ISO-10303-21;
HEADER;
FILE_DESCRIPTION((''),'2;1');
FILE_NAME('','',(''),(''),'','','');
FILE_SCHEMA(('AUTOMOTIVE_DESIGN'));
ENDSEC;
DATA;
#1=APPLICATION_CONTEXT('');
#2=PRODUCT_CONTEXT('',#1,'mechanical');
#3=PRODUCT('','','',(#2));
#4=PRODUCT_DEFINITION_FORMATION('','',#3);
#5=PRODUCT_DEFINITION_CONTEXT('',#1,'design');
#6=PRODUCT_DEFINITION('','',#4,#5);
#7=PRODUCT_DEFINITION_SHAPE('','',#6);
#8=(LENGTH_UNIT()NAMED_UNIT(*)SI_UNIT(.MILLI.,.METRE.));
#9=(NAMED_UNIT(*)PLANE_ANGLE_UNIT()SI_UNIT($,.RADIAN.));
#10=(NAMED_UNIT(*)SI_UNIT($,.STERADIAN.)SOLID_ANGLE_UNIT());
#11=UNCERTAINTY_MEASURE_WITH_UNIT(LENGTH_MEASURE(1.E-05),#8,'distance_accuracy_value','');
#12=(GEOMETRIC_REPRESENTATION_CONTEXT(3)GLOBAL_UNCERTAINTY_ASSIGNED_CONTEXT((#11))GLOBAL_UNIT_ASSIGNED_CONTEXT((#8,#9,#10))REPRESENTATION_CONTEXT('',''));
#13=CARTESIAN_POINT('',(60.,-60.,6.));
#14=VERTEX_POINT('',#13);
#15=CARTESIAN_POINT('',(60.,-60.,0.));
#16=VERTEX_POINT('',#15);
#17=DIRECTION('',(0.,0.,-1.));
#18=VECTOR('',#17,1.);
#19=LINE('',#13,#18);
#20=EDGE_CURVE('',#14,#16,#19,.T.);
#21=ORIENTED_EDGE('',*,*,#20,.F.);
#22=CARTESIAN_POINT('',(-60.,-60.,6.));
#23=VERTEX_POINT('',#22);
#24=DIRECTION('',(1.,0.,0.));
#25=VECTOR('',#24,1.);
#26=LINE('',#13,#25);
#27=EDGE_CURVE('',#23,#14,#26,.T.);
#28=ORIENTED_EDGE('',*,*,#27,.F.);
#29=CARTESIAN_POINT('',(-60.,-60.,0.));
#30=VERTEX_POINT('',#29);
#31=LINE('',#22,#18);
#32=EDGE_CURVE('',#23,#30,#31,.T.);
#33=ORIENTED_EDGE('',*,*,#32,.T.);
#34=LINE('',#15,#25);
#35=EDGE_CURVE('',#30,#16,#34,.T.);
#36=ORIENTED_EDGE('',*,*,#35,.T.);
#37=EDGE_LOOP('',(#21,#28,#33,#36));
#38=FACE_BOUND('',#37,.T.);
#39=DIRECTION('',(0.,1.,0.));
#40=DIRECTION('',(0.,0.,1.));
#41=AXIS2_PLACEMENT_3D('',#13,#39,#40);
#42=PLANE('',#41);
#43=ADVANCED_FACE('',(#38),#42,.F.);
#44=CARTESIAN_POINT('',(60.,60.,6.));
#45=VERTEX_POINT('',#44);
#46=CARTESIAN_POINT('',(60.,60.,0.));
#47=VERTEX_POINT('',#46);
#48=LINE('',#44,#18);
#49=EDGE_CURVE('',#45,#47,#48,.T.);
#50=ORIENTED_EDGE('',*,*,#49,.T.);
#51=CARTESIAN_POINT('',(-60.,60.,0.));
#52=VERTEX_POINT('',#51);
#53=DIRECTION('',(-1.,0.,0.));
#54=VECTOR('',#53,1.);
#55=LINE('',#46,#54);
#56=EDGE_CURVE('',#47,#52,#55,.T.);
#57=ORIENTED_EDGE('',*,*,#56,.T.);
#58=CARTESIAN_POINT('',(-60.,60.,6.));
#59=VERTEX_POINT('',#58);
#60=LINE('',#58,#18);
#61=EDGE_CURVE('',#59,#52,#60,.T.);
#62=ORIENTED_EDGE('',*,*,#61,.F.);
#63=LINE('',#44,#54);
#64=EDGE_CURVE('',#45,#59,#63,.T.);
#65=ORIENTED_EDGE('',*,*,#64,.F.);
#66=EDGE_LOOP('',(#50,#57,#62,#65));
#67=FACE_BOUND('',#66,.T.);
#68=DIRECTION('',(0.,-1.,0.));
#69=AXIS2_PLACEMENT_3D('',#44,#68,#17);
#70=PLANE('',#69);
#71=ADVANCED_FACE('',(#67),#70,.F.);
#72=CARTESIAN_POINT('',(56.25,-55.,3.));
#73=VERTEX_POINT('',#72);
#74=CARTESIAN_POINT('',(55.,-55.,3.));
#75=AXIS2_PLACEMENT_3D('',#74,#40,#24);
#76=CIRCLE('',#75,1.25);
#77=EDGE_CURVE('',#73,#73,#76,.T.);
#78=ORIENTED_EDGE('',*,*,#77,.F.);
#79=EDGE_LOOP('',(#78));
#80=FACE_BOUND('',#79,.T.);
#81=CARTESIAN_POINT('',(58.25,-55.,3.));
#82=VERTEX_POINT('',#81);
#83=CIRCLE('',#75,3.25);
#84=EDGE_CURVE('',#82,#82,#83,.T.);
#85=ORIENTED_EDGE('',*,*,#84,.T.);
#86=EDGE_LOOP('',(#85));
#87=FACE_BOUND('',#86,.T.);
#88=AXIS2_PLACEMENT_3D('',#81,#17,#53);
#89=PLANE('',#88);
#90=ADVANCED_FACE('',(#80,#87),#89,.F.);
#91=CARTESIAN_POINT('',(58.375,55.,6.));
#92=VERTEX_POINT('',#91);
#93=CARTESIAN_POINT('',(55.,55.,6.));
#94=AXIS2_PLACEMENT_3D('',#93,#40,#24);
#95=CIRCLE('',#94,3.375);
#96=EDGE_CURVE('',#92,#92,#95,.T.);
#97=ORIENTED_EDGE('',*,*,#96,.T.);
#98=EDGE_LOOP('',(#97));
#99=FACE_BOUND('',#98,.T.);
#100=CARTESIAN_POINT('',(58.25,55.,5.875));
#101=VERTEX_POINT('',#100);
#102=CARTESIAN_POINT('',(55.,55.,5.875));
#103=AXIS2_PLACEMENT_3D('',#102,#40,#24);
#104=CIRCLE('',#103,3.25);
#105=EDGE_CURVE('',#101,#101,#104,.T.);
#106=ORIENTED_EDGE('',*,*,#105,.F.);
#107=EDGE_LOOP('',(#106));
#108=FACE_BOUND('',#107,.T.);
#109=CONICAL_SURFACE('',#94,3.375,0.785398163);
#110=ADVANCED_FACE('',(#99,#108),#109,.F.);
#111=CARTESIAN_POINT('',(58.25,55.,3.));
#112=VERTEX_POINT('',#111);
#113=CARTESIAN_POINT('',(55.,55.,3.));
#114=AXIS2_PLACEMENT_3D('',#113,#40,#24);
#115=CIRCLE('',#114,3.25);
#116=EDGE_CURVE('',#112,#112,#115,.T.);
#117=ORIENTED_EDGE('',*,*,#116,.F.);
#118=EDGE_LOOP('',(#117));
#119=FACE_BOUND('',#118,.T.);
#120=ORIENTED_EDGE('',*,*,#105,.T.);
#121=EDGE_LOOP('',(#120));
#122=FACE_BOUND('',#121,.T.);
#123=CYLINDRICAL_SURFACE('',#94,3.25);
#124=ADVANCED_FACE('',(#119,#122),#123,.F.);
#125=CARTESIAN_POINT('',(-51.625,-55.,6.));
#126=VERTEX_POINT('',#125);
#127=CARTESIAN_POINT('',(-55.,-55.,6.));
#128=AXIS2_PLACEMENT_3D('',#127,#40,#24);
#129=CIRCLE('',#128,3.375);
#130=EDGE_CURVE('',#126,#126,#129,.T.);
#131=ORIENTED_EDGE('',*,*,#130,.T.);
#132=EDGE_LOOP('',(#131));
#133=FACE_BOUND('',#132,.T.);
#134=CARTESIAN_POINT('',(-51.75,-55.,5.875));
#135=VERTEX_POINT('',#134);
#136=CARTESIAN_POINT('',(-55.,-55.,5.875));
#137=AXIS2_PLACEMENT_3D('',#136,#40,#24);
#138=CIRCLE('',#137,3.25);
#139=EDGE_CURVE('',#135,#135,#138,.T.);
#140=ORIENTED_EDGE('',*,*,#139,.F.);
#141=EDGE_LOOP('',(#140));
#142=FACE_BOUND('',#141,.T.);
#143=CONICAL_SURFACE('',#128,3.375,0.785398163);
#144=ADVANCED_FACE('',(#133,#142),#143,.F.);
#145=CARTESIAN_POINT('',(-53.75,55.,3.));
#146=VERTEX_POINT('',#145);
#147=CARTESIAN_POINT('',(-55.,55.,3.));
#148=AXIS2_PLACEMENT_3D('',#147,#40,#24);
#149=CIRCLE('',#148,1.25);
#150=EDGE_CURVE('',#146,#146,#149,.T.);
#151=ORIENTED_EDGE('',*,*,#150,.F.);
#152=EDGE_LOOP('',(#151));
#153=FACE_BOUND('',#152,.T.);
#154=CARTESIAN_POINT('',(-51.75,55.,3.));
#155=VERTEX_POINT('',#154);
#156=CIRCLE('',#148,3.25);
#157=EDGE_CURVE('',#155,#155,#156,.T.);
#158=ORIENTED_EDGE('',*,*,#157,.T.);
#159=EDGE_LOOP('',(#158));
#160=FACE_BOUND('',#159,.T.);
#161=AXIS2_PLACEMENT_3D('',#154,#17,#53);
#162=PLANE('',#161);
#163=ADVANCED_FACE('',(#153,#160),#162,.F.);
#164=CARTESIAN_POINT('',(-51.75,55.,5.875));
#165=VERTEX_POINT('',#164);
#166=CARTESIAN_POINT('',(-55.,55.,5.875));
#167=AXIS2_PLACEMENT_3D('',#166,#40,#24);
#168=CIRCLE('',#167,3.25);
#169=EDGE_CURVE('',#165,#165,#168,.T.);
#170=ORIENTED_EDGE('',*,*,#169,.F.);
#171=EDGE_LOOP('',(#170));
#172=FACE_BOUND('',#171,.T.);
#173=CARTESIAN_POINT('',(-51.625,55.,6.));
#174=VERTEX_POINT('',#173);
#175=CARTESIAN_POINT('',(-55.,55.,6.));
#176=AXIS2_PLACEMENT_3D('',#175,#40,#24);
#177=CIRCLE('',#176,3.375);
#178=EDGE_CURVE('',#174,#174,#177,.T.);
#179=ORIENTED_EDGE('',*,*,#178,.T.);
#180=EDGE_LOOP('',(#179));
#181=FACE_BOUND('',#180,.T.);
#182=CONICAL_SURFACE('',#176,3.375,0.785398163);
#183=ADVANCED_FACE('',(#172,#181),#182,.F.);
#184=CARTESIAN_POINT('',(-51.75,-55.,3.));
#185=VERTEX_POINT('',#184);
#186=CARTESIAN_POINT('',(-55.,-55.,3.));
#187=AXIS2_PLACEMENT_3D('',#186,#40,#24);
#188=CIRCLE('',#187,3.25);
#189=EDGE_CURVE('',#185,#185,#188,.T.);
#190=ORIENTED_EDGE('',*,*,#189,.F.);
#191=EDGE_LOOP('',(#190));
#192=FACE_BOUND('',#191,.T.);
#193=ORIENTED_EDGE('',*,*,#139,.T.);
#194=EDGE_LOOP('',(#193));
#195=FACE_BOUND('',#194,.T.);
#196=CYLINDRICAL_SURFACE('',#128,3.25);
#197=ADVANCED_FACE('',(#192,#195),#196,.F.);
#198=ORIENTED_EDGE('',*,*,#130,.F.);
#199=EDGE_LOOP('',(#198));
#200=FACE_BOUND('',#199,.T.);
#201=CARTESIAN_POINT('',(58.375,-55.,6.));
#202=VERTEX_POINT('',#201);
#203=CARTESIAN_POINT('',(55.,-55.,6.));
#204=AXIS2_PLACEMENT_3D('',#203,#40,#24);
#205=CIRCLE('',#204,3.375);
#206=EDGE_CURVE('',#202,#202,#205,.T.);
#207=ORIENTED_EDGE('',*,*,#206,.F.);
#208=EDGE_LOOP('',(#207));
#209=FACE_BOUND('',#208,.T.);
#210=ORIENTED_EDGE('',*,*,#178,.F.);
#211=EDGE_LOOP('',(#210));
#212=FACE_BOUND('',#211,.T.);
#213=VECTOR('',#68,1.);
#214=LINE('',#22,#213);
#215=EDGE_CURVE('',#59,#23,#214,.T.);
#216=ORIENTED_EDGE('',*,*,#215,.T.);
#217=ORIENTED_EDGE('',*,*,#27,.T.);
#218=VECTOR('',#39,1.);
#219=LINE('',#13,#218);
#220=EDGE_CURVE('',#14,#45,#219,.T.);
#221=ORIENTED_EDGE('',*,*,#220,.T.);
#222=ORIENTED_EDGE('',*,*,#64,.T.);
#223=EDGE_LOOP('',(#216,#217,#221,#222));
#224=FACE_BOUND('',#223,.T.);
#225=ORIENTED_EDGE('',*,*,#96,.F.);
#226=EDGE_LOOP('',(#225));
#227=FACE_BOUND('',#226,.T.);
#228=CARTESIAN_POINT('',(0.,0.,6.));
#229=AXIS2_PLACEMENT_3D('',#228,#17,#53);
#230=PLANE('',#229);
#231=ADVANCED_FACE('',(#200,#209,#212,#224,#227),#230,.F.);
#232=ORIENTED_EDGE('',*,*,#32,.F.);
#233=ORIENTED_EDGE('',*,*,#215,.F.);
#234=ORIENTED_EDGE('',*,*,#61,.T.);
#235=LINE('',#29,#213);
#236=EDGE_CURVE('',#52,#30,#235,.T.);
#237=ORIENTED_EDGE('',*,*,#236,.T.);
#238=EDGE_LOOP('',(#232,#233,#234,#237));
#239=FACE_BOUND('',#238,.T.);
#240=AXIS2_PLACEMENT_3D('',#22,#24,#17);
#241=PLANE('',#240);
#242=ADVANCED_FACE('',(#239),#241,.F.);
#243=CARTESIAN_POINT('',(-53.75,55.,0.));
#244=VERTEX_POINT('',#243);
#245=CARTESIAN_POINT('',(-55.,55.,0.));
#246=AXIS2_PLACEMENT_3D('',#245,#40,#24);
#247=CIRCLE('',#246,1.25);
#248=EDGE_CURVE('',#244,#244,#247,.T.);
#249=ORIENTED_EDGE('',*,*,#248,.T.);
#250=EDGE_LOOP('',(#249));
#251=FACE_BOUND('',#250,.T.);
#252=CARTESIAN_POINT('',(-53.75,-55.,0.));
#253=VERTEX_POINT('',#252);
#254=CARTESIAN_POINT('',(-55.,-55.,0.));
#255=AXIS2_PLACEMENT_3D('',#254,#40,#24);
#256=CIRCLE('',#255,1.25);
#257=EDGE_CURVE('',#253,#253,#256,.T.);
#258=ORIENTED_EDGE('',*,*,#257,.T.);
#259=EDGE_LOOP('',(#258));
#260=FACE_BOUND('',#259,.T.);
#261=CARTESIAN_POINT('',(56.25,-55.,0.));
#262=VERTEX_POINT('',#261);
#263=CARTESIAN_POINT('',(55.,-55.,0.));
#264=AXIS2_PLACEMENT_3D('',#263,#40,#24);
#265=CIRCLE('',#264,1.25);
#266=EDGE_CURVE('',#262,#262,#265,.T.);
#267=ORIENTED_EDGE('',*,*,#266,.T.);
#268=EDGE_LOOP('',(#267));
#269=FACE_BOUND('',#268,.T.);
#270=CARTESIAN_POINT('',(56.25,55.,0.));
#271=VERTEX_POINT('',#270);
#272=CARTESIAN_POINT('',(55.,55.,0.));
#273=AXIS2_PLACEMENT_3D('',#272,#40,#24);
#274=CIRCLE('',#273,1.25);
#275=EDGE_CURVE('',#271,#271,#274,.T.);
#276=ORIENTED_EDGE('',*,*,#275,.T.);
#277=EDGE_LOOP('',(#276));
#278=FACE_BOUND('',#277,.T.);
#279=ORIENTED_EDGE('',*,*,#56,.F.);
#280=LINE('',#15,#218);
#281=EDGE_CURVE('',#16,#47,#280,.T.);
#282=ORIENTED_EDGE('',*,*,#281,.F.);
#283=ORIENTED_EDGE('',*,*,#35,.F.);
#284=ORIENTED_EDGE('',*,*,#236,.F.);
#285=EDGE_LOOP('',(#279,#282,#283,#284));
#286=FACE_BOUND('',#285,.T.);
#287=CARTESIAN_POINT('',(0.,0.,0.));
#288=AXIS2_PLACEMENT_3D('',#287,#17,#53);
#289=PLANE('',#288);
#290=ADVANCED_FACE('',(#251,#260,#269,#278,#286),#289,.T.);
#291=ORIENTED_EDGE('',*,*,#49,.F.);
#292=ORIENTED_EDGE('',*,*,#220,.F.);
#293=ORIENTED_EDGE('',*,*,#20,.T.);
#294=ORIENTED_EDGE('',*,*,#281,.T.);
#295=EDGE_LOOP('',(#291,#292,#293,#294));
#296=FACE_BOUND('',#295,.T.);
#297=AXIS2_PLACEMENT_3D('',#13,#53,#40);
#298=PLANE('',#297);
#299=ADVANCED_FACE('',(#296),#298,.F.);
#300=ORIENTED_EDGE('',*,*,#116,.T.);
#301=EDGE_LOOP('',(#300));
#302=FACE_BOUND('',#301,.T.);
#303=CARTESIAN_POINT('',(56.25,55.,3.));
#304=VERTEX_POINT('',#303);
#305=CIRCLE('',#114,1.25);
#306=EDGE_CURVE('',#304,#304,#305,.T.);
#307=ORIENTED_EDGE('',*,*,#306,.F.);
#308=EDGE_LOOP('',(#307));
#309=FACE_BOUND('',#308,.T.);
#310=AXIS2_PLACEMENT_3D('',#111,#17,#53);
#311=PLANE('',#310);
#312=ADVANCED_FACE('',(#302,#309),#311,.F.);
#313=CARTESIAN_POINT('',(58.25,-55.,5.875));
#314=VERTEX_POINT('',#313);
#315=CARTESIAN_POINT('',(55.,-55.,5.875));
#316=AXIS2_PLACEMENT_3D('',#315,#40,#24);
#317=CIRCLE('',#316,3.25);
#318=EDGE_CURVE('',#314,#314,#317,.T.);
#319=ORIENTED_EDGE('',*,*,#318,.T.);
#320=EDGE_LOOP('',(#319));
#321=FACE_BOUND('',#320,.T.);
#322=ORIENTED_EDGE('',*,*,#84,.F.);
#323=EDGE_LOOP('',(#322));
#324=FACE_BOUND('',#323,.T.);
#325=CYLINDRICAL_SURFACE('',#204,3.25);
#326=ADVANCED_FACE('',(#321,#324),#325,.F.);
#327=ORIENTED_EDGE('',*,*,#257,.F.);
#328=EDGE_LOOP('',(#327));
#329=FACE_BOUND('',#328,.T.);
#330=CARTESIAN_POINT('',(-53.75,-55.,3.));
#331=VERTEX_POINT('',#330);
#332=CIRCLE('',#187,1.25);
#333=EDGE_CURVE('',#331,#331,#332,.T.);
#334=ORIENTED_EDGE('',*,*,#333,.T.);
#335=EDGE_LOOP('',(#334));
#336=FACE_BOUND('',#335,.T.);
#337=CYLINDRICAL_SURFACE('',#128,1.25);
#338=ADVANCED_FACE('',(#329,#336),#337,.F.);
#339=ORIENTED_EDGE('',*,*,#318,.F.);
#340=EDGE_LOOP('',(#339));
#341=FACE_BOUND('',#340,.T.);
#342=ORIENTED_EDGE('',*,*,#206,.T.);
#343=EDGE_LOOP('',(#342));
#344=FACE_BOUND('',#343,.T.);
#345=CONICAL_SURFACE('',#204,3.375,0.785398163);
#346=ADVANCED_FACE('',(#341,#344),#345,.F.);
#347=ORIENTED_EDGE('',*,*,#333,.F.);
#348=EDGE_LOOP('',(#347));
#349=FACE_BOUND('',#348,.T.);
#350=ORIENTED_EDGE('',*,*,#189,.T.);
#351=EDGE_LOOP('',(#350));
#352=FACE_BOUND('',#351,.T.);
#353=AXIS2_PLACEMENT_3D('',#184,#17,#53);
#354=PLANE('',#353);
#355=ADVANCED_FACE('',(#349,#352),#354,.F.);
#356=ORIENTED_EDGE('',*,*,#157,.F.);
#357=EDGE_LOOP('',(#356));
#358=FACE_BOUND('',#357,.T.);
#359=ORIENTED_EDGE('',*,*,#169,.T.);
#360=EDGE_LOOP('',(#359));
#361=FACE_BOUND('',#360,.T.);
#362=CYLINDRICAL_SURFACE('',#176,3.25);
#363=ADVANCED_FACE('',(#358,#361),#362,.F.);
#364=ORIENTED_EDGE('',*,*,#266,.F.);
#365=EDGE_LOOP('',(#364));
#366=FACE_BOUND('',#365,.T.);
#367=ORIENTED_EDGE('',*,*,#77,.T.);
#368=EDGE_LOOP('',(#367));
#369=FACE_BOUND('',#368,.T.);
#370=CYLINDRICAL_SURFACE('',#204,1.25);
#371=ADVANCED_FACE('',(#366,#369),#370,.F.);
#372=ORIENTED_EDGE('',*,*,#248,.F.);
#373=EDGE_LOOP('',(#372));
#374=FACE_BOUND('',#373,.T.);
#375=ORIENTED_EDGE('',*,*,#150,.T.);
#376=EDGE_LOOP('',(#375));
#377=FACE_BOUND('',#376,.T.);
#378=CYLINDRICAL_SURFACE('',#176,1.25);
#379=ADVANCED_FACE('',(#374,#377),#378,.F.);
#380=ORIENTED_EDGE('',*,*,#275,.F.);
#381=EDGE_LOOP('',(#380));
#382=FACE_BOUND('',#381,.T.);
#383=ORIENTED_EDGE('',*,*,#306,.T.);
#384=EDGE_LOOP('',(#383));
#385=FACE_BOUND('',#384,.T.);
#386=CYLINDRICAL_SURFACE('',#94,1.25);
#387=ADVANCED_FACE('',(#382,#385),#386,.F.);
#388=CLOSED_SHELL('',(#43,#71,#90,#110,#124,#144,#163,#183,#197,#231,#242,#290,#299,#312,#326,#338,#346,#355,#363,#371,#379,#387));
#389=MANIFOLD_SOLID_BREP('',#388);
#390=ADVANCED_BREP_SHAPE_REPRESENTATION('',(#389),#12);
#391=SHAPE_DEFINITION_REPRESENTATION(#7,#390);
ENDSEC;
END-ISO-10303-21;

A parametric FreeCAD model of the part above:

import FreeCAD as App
import Part
import Sketcher

V = App.Vector
Q = App.Units.Quantity

doc = App.newDocument("Part")
body = doc.addObject("PartDesign::Body", "Body")

# Sketch on XY plane
sketch1 = body.newObject("Sketcher::SketchObject", "Sketch")
sketch1.AttachmentSupport = (doc.getObject("XY_Plane"), [""])
sketch1.MapMode = "FlatFace"
sketch1.addGeometry(Part.LineSegment(V(-60, -60, 0), V(60, -60, 0)), False)
sketch1.addGeometry(Part.LineSegment(V(60, -60, 0), V(60, 60, 0)), False)
sketch1.addGeometry(Part.LineSegment(V(60, 60, 0), V(-60, 60, 0)), False)
sketch1.addGeometry(Part.LineSegment(V(-60, 60, 0), V(-60, -60, 0)), False)
sketch1.addConstraint(Sketcher.Constraint("Coincident", 0, 2, 1, 1))
sketch1.addConstraint(Sketcher.Constraint("Coincident", 1, 2, 2, 1))
sketch1.addConstraint(Sketcher.Constraint("Coincident", 2, 2, 3, 1))
sketch1.addConstraint(Sketcher.Constraint("Coincident", 3, 2, 0, 1))
sketch1.addConstraint(Sketcher.Constraint("Horizontal", 0))
sketch1.addConstraint(Sketcher.Constraint("Vertical", 1))
sketch1.addConstraint(Sketcher.Constraint("Horizontal", 2))
sketch1.addConstraint(Sketcher.Constraint("Vertical", 3))
sketch1.addConstraint(Sketcher.Constraint("Symmetric", 0, 2, 2, 2, -1, 1))
sketch1.addConstraint(Sketcher.Constraint("Equal", 2, 1))
sketch1.addConstraint(Sketcher.Constraint("DistanceX", 0, 1, 0, 2, 120.0))
pad1 = body.newObject("PartDesign::Pad", "Pad")
pad1.Profile = sketch1
pad1.Length = 6

# Sketch on YZ plane
sketch2 = body.newObject("Sketcher::SketchObject", "Sketch001")
sketch2.AttachmentSupport = (doc.getObject("YZ_Plane"), [""])
sketch2.MapMode = "FlatFace"
sketch2.AttachmentOffset = App.Placement(V(0, 0, -55), App.Rotation())
sketch2.addGeometry(Part.LineSegment(V(55, 0, 0), V(55, 6, 0)), False)
sketch2.addGeometry(Part.LineSegment(V(55, 6, 0), V(51.62, 6, 0)), False)
sketch2.addGeometry(Part.LineSegment(V(51.62, 6, 0), V(51.75, 5.88, 0)), False)
sketch2.addGeometry(Part.LineSegment(V(51.75, 5.88, 0), V(51.75, 3, 0)), False)
sketch2.addGeometry(Part.LineSegment(V(51.75, 3, 0), V(53.75, 3, 0)), False)
sketch2.addGeometry(Part.LineSegment(V(53.75, 3, 0), V(53.75, 0, 0)), False)
sketch2.addGeometry(Part.LineSegment(V(53.75, 0, 0), V(55, 0, 0)), False)
sketch2.addGeometry(Part.LineSegment(V(55, 6, 0), V(55, 0, 0)), True)  # axis
sketch2.addConstraint(Sketcher.Constraint("Coincident", 0, 2, 1, 1))
sketch2.addConstraint(Sketcher.Constraint("Coincident", 1, 2, 2, 1))
sketch2.addConstraint(Sketcher.Constraint("Coincident", 2, 2, 3, 1))
sketch2.addConstraint(Sketcher.Constraint("Coincident", 3, 2, 4, 1))
sketch2.addConstraint(Sketcher.Constraint("Coincident", 4, 2, 5, 1))
sketch2.addConstraint(Sketcher.Constraint("Coincident", 5, 2, 6, 1))
sketch2.addConstraint(Sketcher.Constraint("Coincident", 6, 2, 0, 1))
sketch2.addConstraint(Sketcher.Constraint("Vertical", 0))
sketch2.addConstraint(Sketcher.Constraint("Horizontal", 1))
sketch2.addConstraint(Sketcher.Constraint("Vertical", 3))
sketch2.addConstraint(Sketcher.Constraint("Horizontal", 4))
sketch2.addConstraint(Sketcher.Constraint("Vertical", 5))
sketch2.addConstraint(Sketcher.Constraint("Horizontal", 6))
sketch2.addConstraint(Sketcher.Constraint("Vertical", 7))
sketch2.addConstraint(Sketcher.Constraint("Coincident", 7, 1, 0, 2))
sketch2.addConstraint(Sketcher.Constraint("PointOnObject", 5, 2, -1))
sketch2.addConstraint(Sketcher.Constraint("PointOnObject", 7, 2, -1))
sketch2.addConstraint(Sketcher.Constraint("DistanceX", 4, 1, 4, 2, 2.0))
sketch2.addConstraint(Sketcher.Constraint("DistanceY", 0, 1, 0, 2, 6.0))
sketch2.addConstraint(Sketcher.Constraint("DistanceY", 5, 2, 5, 1, 3.0))
sketch2.addConstraint(Sketcher.Constraint("Angle", 2, Q("-45 deg")))
sketch2.addConstraint(Sketcher.Constraint("DistanceX", -1, 1, 0, 2, 55.0))
sketch2.addConstraint(Sketcher.Constraint("DistanceX", 6, 1, 6, 2, 1.25))
sketch2.addConstraint(Sketcher.Constraint("DistanceX", 1, 2, 1, 1, 3.375))
groove = body.newObject("PartDesign::Groove", "Groove")
groove.Profile = sketch2
groove.ReferenceAxis = (sketch2, ["Axis0"])
groove.Angle = 360
doc.recompute()

mirrored = body.newObject("PartDesign::Mirrored", "Mirrored")
mirrored.Originals = [groove]
mirrored.MirrorPlane = (doc.getObject("YZ_Plane"), [""])
body.Tip = mirrored
doc.recompute()

mirrored2 = body.newObject("PartDesign::Mirrored", "Mirrored001")
mirrored2.Originals = [groove]
mirrored2.MirrorPlane = (doc.getObject("XZ_Plane"), [""])
body.Tip = mirrored2

# Sketch on YZ plane
sketch3 = body.newObject("Sketcher::SketchObject", "Sketch002")
sketch3.AttachmentSupport = (doc.getObject("YZ_Plane"), [""])
sketch3.MapMode = "FlatFace"
sketch3.AttachmentOffset = App.Placement(V(0, 0, 55), App.Rotation())
sketch3.addGeometry(Part.LineSegment(V(-55, 0, 0), V(-55, 6, 0)), False)
sketch3.addGeometry(Part.LineSegment(V(-55, 6, 0), V(-51.62, 6, 0)), False)
sketch3.addGeometry(Part.LineSegment(V(-51.62, 6, 0), V(-51.75, 5.88, 0)), False)
sketch3.addGeometry(Part.LineSegment(V(-51.75, 5.88, 0), V(-51.75, 3, 0)), False)
sketch3.addGeometry(Part.LineSegment(V(-51.75, 3, 0), V(-53.75, 3, 0)), False)
sketch3.addGeometry(Part.LineSegment(V(-53.75, 3, 0), V(-53.75, 0, 0)), False)
sketch3.addGeometry(Part.LineSegment(V(-53.75, 0, 0), V(-55, 0, 0)), False)
sketch3.addGeometry(Part.LineSegment(V(-55, 6, 0), V(-55, 0, 0)), True)  # axis
sketch3.addConstraint(Sketcher.Constraint("Coincident", 0, 2, 1, 1))
sketch3.addConstraint(Sketcher.Constraint("Coincident", 1, 2, 2, 1))
sketch3.addConstraint(Sketcher.Constraint("Coincident", 2, 2, 3, 1))
sketch3.addConstraint(Sketcher.Constraint("Coincident", 3, 2, 4, 1))
sketch3.addConstraint(Sketcher.Constraint("Coincident", 4, 2, 5, 1))
sketch3.addConstraint(Sketcher.Constraint("Coincident", 5, 2, 6, 1))
sketch3.addConstraint(Sketcher.Constraint("Coincident", 6, 2, 0, 1))
sketch3.addConstraint(Sketcher.Constraint("Vertical", 0))
sketch3.addConstraint(Sketcher.Constraint("Horizontal", 1))
sketch3.addConstraint(Sketcher.Constraint("Vertical", 3))
sketch3.addConstraint(Sketcher.Constraint("Horizontal", 4))
sketch3.addConstraint(Sketcher.Constraint("Vertical", 5))
sketch3.addConstraint(Sketcher.Constraint("Horizontal", 6))
sketch3.addConstraint(Sketcher.Constraint("Vertical", 7))
sketch3.addConstraint(Sketcher.Constraint("Coincident", 7, 1, 0, 2))
sketch3.addConstraint(Sketcher.Constraint("PointOnObject", 5, 2, -1))
sketch3.addConstraint(Sketcher.Constraint("PointOnObject", 7, 2, -1))
sketch3.addConstraint(Sketcher.Constraint("DistanceX", 4, 2, 4, 1, 2.0))
sketch3.addConstraint(Sketcher.Constraint("DistanceY", 0, 1, 0, 2, 6.0))
sketch3.addConstraint(Sketcher.Constraint("DistanceY", 5, 2, 5, 1, 3.0))
sketch3.addConstraint(Sketcher.Constraint("Angle", 2, Q("-135 deg")))
sketch3.addConstraint(Sketcher.Constraint("DistanceX", 0, 2, -1, 1, 55.0))
sketch3.addConstraint(Sketcher.Constraint("DistanceX", 6, 2, 6, 1, 1.25))
sketch3.addConstraint(Sketcher.Constraint("DistanceX", 1, 1, 1, 2, 3.375))
groove2 = body.newObject("PartDesign::Groove", "Groove001")
groove2.Profile = sketch3
groove2.ReferenceAxis = (sketch3, ["Axis0"])
groove2.Angle = 360

doc.recompute()
